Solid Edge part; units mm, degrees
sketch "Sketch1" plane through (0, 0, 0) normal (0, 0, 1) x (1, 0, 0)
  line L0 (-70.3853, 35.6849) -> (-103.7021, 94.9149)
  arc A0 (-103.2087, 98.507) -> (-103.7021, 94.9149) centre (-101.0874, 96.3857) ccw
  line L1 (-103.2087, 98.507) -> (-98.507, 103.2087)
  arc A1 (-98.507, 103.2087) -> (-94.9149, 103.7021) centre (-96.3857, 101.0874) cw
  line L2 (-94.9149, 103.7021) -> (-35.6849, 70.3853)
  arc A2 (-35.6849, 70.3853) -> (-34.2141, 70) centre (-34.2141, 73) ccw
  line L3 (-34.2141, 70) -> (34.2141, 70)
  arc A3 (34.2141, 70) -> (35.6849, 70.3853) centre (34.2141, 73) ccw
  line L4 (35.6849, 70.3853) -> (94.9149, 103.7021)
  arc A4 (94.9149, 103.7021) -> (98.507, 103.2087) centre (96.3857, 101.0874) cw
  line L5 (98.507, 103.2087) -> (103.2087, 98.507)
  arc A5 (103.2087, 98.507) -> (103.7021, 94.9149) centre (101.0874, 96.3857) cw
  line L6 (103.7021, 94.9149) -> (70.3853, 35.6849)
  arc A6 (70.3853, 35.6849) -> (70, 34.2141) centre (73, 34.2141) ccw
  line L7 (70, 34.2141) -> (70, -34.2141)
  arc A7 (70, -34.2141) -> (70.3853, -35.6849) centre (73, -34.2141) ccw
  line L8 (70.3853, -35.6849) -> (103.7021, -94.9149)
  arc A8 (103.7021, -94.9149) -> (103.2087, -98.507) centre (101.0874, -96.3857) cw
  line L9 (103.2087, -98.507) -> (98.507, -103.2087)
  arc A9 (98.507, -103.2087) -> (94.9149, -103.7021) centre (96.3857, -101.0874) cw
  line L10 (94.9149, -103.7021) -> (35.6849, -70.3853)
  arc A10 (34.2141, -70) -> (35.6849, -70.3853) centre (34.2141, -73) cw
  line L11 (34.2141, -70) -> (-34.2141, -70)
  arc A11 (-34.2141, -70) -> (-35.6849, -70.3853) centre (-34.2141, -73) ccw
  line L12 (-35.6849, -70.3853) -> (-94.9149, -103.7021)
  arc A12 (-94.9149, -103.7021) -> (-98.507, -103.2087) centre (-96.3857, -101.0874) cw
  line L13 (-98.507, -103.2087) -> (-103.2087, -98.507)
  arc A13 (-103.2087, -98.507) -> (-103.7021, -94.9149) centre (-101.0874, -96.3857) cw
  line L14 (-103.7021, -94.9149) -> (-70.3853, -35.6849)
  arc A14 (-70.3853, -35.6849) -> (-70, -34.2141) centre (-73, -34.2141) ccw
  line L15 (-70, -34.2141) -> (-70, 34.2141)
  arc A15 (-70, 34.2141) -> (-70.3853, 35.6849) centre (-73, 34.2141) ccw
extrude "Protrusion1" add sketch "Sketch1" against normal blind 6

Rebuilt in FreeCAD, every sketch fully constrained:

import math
import FreeCAD as App
import Part
import Sketcher
Q = App.Units.Quantity

doc = App.newDocument("Part")
params = doc.addObject("Spreadsheet::Sheet", "Params")
for row, (alias, value) in enumerate([
    ("sketch1_radius", "3 mm"),
    ("sketch1_radius2", "3 mm"),
    ("sketch1_radius3", "3 mm"),
    ("sketch1_radius4", "3 mm"),
    ("sketch1_radius5", "3 mm"),
    ("pad1_length", "6 mm"),
], start=1):
    params.set(f"A{row}", alias)
    params.set(f"B{row}", "=" + value)
    params.setAlias(f"B{row}", alias)

body = doc.addObject("PartDesign::Body", "Body")

# Sketch on XY plane
sketch1 = body.newObject("Sketcher::SketchObject", "Sketch")
sketch1.AttachmentSupport = (doc.getObject("XY_Plane"), [""])
sketch1.MapMode = "FlatFace"
sketch1.addGeometry(Part.LineSegment(App.Vector(-103.7021, 94.9149, 0), App.Vector(-70.3853, 35.6849, 0)), False)
sketch1.addGeometry(Part.ArcOfCircle(Part.Circle(App.Vector(-73, 34.2141, 0), App.Vector(0, 0, 1), 3), math.radians(0), math.radians(29.358274)), False)
sketch1.addGeometry(Part.LineSegment(App.Vector(-70, 34.2141, 0), App.Vector(-70, -34.2141, 0)), False)
sketch1.addGeometry(Part.ArcOfCircle(Part.Circle(App.Vector(-73, -34.2141, 0), App.Vector(0, 0, 1), 2.999985), math.radians(-29.358274), math.radians(0)), False)
sketch1.addGeometry(Part.LineSegment(App.Vector(-70.3853, -35.6849, 0), App.Vector(-103.7021, -94.9149, 0)), False)
sketch1.addGeometry(Part.ArcOfCircle(Part.Circle(App.Vector(-101.0874, -96.3857, 0), App.Vector(0, 0, 1), 2.999971), math.radians(150.641726), math.radians(225)), False)
sketch1.addGeometry(Part.LineSegment(App.Vector(-103.2087, -98.507, 0), App.Vector(-98.507, -103.2087, 0)), False)
sketch1.addGeometry(Part.ArcOfCircle(Part.Circle(App.Vector(-96.3857, -101.0874, 0), App.Vector(0, 0, 1), 2.999985), math.radians(-135), math.radians(-60.641726)), False)
sketch1.addGeometry(Part.LineSegment(App.Vector(-94.9149, -103.7021, 0), App.Vector(-35.6849, -70.3853, 0)), False)
sketch1.addGeometry(Part.ArcOfCircle(Part.Circle(App.Vector(-34.2141, -73, 0), App.Vector(0, 0, 1), 3), math.radians(90), math.radians(119.358274)), False)
sketch1.addGeometry(Part.LineSegment(App.Vector(-34.2141, -70, 0), App.Vector(34.2141, -70, 0)), False)
sketch1.addGeometry(Part.ArcOfCircle(Part.Circle(App.Vector(34.2141, -73, 0), App.Vector(0, 0, 1), 3), math.radians(60.641726), math.radians(90)), False)
sketch1.addGeometry(Part.LineSegment(App.Vector(35.6849, -70.3853, 0), App.Vector(94.9149, -103.7021, 0)), False)
sketch1.addGeometry(Part.ArcOfCircle(Part.Circle(App.Vector(96.3857, -101.0874, 0), App.Vector(0, 0, 1), 2.999971), math.radians(-119.358274), math.radians(-45)), False)
sketch1.addGeometry(Part.LineSegment(App.Vector(98.507, -103.2087, 0), App.Vector(103.2087, -98.507, 0)), False)
sketch1.addGeometry(Part.ArcOfCircle(Part.Circle(App.Vector(101.0874, -96.3857, 0), App.Vector(0, 0, 1), 2.999985), math.radians(-45), math.radians(29.358274)), False)
sketch1.addGeometry(Part.LineSegment(App.Vector(103.7021, -94.9149, 0), App.Vector(70.3853, -35.6849, 0)), False)
sketch1.addGeometry(Part.ArcOfCircle(Part.Circle(App.Vector(73, -34.2141, 0), App.Vector(0, 0, 1), 3), math.radians(180), math.radians(209.358274)), False)
sketch1.addGeometry(Part.LineSegment(App.Vector(70, -34.2141, 0), App.Vector(70, 34.2141, 0)), False)
sketch1.addGeometry(Part.ArcOfCircle(Part.Circle(App.Vector(73, 34.2141, 0), App.Vector(0, 0, 1), 2.999985), math.radians(150.641726), math.radians(180)), False)
sketch1.addGeometry(Part.LineSegment(App.Vector(70.3853, 35.6849, 0), App.Vector(103.7021, 94.9149, 0)), False)
sketch1.addGeometry(Part.ArcOfCircle(Part.Circle(App.Vector(101.0874, 96.3857, 0), App.Vector(0, 0, 1), 2.999971), math.radians(-29.358274), math.radians(45)), False)
sketch1.addGeometry(Part.LineSegment(App.Vector(103.2087, 98.507, 0), App.Vector(98.507, 103.2087, 0)), False)
sketch1.addGeometry(Part.ArcOfCircle(Part.Circle(App.Vector(96.3857, 101.0874, 0), App.Vector(0, 0, 1), 2.999985), math.radians(45), math.radians(119.358274)), False)
sketch1.addGeometry(Part.LineSegment(App.Vector(94.9149, 103.7021, 0), App.Vector(35.6849, 70.3853, 0)), False)
sketch1.addGeometry(Part.ArcOfCircle(Part.Circle(App.Vector(34.2141, 73, 0), App.Vector(0, 0, 1), 3), math.radians(-90), math.radians(-60.641726)), False)
sketch1.addGeometry(Part.LineSegment(App.Vector(34.2141, 70, 0), App.Vector(-34.2141, 70, 0)), False)
sketch1.addGeometry(Part.ArcOfCircle(Part.Circle(App.Vector(-34.2141, 73, 0), App.Vector(0, 0, 1), 2.999985), math.radians(-119.358274), math.radians(-90)), False)
sketch1.addGeometry(Part.LineSegment(App.Vector(-35.6849, 70.3853, 0), App.Vector(-94.9149, 103.7021, 0)), False)
sketch1.addGeometry(Part.ArcOfCircle(Part.Circle(App.Vector(-96.3857, 101.0874, 0), App.Vector(0, 0, 1), 2.999971), math.radians(60.641726), math.radians(135)), False)
sketch1.addGeometry(Part.LineSegment(App.Vector(-98.507, 103.2087, 0), App.Vector(-103.2087, 98.507, 0)), False)
sketch1.addGeometry(Part.ArcOfCircle(Part.Circle(App.Vector(-101.0874, 96.3857, 0), App.Vector(0, 0, 1), 2.999971), math.radians(135), math.radians(209.358274)), False)
sketch1.addConstraint(Sketcher.Constraint("Coincident", 0, 2, 1, 2))
sketch1.addConstraint(Sketcher.Constraint("Coincident", 1, 1, 2, 1))
sketch1.addConstraint(Sketcher.Constraint("Coincident", 2, 2, 3, 2))
sketch1.addConstraint(Sketcher.Constraint("Coincident", 3, 1, 4, 1))
sketch1.addConstraint(Sketcher.Constraint("Coincident", 4, 2, 5, 1))
sketch1.addConstraint(Sketcher.Constraint("Coincident", 5, 2, 6, 1))
sketch1.addConstraint(Sketcher.Constraint("Coincident", 6, 2, 7, 1))
sketch1.addConstraint(Sketcher.Constraint("Coincident", 7, 2, 8, 1))
sketch1.addConstraint(Sketcher.Constraint("Coincident", 8, 2, 9, 2))
sketch1.addConstraint(Sketcher.Constraint("Coincident", 9, 1, 10, 1))
sketch1.addConstraint(Sketcher.Constraint("Coincident", 10, 2, 11, 2))
sketch1.addConstraint(Sketcher.Constraint("Coincident", 11, 1, 12, 1))
sketch1.addConstraint(Sketcher.Constraint("Coincident", 12, 2, 13, 1))
sketch1.addConstraint(Sketcher.Constraint("Coincident", 13, 2, 14, 1))
sketch1.addConstraint(Sketcher.Constraint("Coincident", 14, 2, 15, 1))
sketch1.addConstraint(Sketcher.Constraint("Coincident", 15, 2, 16, 1))
sketch1.addConstraint(Sketcher.Constraint("Coincident", 16, 2, 17, 2))
sketch1.addConstraint(Sketcher.Constraint("Coincident", 17, 1, 18, 1))
sketch1.addConstraint(Sketcher.Constraint("Coincident", 18, 2, 19, 2))
sketch1.addConstraint(Sketcher.Constraint("Coincident", 19, 1, 20, 1))
sketch1.addConstraint(Sketcher.Constraint("Coincident", 20, 2, 21, 1))
sketch1.addConstraint(Sketcher.Constraint("Coincident", 21, 2, 22, 1))
sketch1.addConstraint(Sketcher.Constraint("Coincident", 22, 2, 23, 1))
sketch1.addConstraint(Sketcher.Constraint("Coincident", 23, 2, 24, 1))
sketch1.addConstraint(Sketcher.Constraint("Coincident", 24, 2, 25, 2))
sketch1.addConstraint(Sketcher.Constraint("Coincident", 25, 1, 26, 1))
sketch1.addConstraint(Sketcher.Constraint("Coincident", 26, 2, 27, 2))
sketch1.addConstraint(Sketcher.Constraint("Coincident", 27, 1, 28, 1))
sketch1.addConstraint(Sketcher.Constraint("Coincident", 28, 2, 29, 1))
sketch1.addConstraint(Sketcher.Constraint("Coincident", 29, 2, 30, 1))
sketch1.addConstraint(Sketcher.Constraint("Coincident", 30, 2, 31, 1))
sketch1.addConstraint(Sketcher.Constraint("Coincident", 31, 2, 0, 1))
sketch1.addConstraint(Sketcher.Constraint("Vertical", 2))
sketch1.addConstraint(Sketcher.Constraint("Horizontal", 10))
sketch1.addConstraint(Sketcher.Constraint("Vertical", 18))
sketch1.addConstraint(Sketcher.Constraint("Horizontal", 26))
sketch1.addConstraint(Sketcher.Constraint("Radius", 1, Q("3 mm")))
sketch1.addConstraint(Sketcher.Constraint("Radius", 3, Q("3 mm")))
sketch1.addConstraint(Sketcher.Constraint("Radius", 5, Q("3 mm")))
sketch1.addConstraint(Sketcher.Constraint("Radius", 7, Q("3 mm")))
sketch1.addConstraint(Sketcher.Constraint("Radius", 9, Q("3 mm")))
sketch1.addConstraint(Sketcher.Constraint("Radius", 11, Q("3 mm")))
sketch1.addConstraint(Sketcher.Constraint("Radius", 13, Q("3 mm")))
sketch1.addConstraint(Sketcher.Constraint("Radius", 15, Q("3 mm")))
sketch1.addConstraint(Sketcher.Constraint("Radius", 17, Q("3 mm")))
sketch1.addConstraint(Sketcher.Constraint("Radius", 19, Q("3 mm")))
sketch1.addConstraint(Sketcher.Constraint("Radius", 21, Q("3 mm")))
sketch1.addConstraint(Sketcher.Constraint("Radius", 23, Q("3 mm")))
sketch1.addConstraint(Sketcher.Constraint("Radius", 25, Q("3 mm")))
sketch1.addConstraint(Sketcher.Constraint("Radius", 27, Q("3 mm")))
sketch1.addConstraint(Sketcher.Constraint("Radius", 29, Q("3 mm")))
sketch1.addConstraint(Sketcher.Constraint("Radius", 31, Q("3 mm")))
sketch1.addConstraint(Sketcher.Constraint("DistanceX", 1, 3, -1, 1, Q("73 mm")))
sketch1.addConstraint(Sketcher.Constraint("DistanceY", 9, 3, -1, 1, Q("73 mm")))
sketch1.addConstraint(Sketcher.Constraint("DistanceX", -1, 1, 17, 3, Q("73 mm")))
sketch1.addConstraint(Sketcher.Constraint("DistanceY", -1, 1, 25, 3, Q("73 mm")))
sketch1.addConstraint(Sketcher.Constraint("DistanceY", 4, 2, 3, 1, Q("59.23 mm")))
sketch1.addConstraint(Sketcher.Constraint("DistanceX", 7, 2, 8, 2, Q("59.23 mm")))
sketch1.addConstraint(Sketcher.Constraint("DistanceX", 11, 1, 12, 2, Q("59.23 mm")))
sketch1.addConstraint(Sketcher.Constraint("DistanceY", 15, 2, 16, 2, Q("59.23 mm")))
sketch1.addConstraint(Sketcher.Constraint("DistanceY", 19, 1, 20, 2, Q("59.23 mm")))
sketch1.addConstraint(Sketcher.Constraint("DistanceX", 24, 2, 23, 2, Q("59.23 mm")))
sketch1.addConstraint(Sketcher.Constraint("DistanceX", 28, 2, 27, 1, Q("59.23 mm")))
sketch1.addConstraint(Sketcher.Constraint("DistanceX", 10, 1, 10, 2, Q("68.4282 mm")))
sketch1.addConstraint(Sketcher.Constraint("DistanceX", 26, 2, 26, 1, Q("68.4282 mm")))
sketch1.addConstraint(Sketcher.Constraint("DistanceY", 2, 2, 2, 1, Q("68.4282 mm")))
sketch1.addConstraint(Sketcher.Constraint("DistanceY", 18, 1, 18, 2, Q("68.4282 mm")))
sketch1.addConstraint(Sketcher.Constraint("DistanceY", -1, 1, 1, 3, Q("34.214 mm")))
sketch1.addConstraint(Sketcher.Constraint("DistanceY", 3, 3, -1, 1, Q("34.214 mm")))
sketch1.addConstraint(Sketcher.Constraint("DistanceX", 9, 3, -1, 1, Q("34.214 mm")))
sketch1.addConstraint(Sketcher.Constraint("DistanceX", -1, 1, 11, 3, Q("34.214 mm")))
sketch1.addConstraint(Sketcher.Constraint("DistanceY", 17, 3, -1, 1, Q("34.214 mm")))
sketch1.addConstraint(Sketcher.Constraint("DistanceY", -1, 1, 19, 3, Q("34.214 mm")))
sketch1.addConstraint(Sketcher.Constraint("DistanceX", -1, 1, 25, 3, Q("34.214 mm")))
sketch1.addConstraint(Sketcher.Constraint("DistanceX", 27, 3, -1, 1, Q("34.214 mm")))
sketch1.addConstraint(Sketcher.Constraint("DistanceY", -1, 1, 0, 2, Q("35.685 mm")))
sketch1.addConstraint(Sketcher.Constraint("DistanceY", -1, 1, 1, 1, Q("34.214 mm")))
sketch1.addConstraint(Sketcher.Constraint("DistanceY", 3, 1, -1, 1, Q("35.685 mm")))
sketch1.addConstraint(Sketcher.Constraint("DistanceX", 4, 2, -1, 1, Q("103.702 mm")))
sketch1.addConstraint(Sketcher.Constraint("DistanceY", 5, 2, -1, 1, Q("98.507 mm")))
sketch1.addConstraint(Sketcher.Constraint("DistanceX", 6, 2, -1, 1, Q("98.507 mm")))
sketch1.addConstraint(Sketcher.Constraint("DistanceX", 7, 2, -1, 1, Q("94.915 mm")))
sketch1.addConstraint(Sketcher.Constraint("DistanceY", 7, 2, -1, 1, Q("103.702 mm")))
sketch1.addConstraint(Sketcher.Constraint("DistanceX", 9, 1, -1, 1, Q("34.214 mm")))
sketch1.addConstraint(Sketcher.Constraint("DistanceX", -1, 1, 11, 1, Q("35.685 mm")))
sketch1.addConstraint(Sketcher.Constraint("DistanceY", 12, 2, -1, 1, Q("103.702 mm")))
sketch1.addConstraint(Sketcher.Constraint("DistanceX", -1, 1, 13, 2, Q("98.507 mm")))
sketch1.addConstraint(Sketcher.Constraint("DistanceY", 14, 2, -1, 1, Q("98.507 mm")))
sketch1.addConstraint(Sketcher.Constraint("DistanceX", -1, 1, 15, 2, Q("103.702 mm")))
sketch1.addConstraint(Sketcher.Constraint("DistanceY", 15, 2, -1, 1, Q("94.915 mm")))
sketch1.addConstraint(Sketcher.Constraint("DistanceY", 17, 1, -1, 1, Q("34.214 mm")))
sketch1.addConstraint(Sketcher.Constraint("DistanceY", -1, 1, 19, 1, Q("35.685 mm")))
sketch1.addConstraint(Sketcher.Constraint("DistanceX", -1, 1, 20, 2, Q("103.702 mm")))
sketch1.addConstraint(Sketcher.Constraint("DistanceY", -1, 1, 21, 2, Q("98.507 mm")))
sketch1.addConstraint(Sketcher.Constraint("DistanceX", -1, 1, 22, 2, Q("98.507 mm")))
sketch1.addConstraint(Sketcher.Constraint("DistanceX", -1, 1, 23, 2, Q("94.915 mm")))
sketch1.addConstraint(Sketcher.Constraint("DistanceY", -1, 1, 23, 2, Q("103.702 mm")))
sketch1.addConstraint(Sketcher.Constraint("DistanceX", -1, 1, 25, 1, Q("34.214 mm")))
sketch1.addConstraint(Sketcher.Constraint("DistanceX", 27, 1, -1, 1, Q("35.685 mm")))
sketch1.addConstraint(Sketcher.Constraint("DistanceY", -1, 1, 28, 2, Q("103.702 mm")))
sketch1.addConstraint(Sketcher.Constraint("DistanceX", 29, 2, -1, 1, Q("98.507 mm")))
sketch1.addConstraint(Sketcher.Constraint("DistanceY", -1, 1, 30, 2, Q("98.507 mm")))
sketch1.addConstraint(Sketcher.Constraint("DistanceX", 31, 2, -1, 1, Q("103.702 mm")))
sketch1.addConstraint(Sketcher.Constraint("DistanceY", -1, 1, 31, 2, Q("94.915 mm")))
sketch1.addConstraint(Sketcher.Constraint("DistanceX", 5, 3, 13, 3, Q("197.473 mm")))
sketch1.addConstraint(Sketcher.Constraint("DistanceX", 7, 3, 15, 3, Q("197.473 mm")))
sketch1.addConstraint(Sketcher.Constraint("DistanceX", 31, 3, 0, 2, Q("30.702 mm")))
sketch1.addConstraint(Sketcher.Constraint("DistanceX", 5, 3, 3, 1, Q("30.702 mm")))
sketch1.addConstraint(Sketcher.Constraint("DistanceX", 5, 2, 7, 3, Q("6.823 mm")))
sketch1.addConstraint(Sketcher.Constraint("DistanceX", 19, 1, 21, 3, Q("30.702 mm")))
sketch1.addConstraint(Sketcher.Constraint("DistanceX", 23, 3, 21, 2, Q("6.823 mm")))
sketch1.addConstraint(Sketcher.Constraint("DistanceY", 31, 3, 29, 2, Q("6.823 mm")))
sketch1.setExpression("Constraints[36]", "Params.sketch1_radius")
sketch1.setExpression("Constraints[37]", "Params.sketch1_radius2")
sketch1.setExpression("Constraints[38]", "Params.sketch1_radius3")
sketch1.setExpression("Constraints[39]", "Params.sketch1_radius4")
sketch1.setExpression("Constraints[40]", "Params.sketch1_radius5")
pad1 = body.newObject("PartDesign::Pad", "Pad")
pad1.Profile = sketch1
pad1.setExpression("Length", "Params.pad1_length")
pad1.Reversed = True

doc.recompute()
